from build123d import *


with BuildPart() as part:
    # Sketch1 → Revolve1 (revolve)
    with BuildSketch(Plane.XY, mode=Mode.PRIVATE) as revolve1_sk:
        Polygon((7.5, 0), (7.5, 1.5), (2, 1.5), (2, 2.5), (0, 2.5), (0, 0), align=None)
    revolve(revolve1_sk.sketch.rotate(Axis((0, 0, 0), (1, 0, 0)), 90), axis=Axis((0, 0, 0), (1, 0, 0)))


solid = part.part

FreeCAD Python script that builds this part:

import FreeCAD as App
import Part
import Sketcher

V = App.Vector
Q = App.Units.Quantity

doc = App.newDocument("Part")
body = doc.addObject("PartDesign::Body", "Body")

# Sketch on XY plane
sketch1 = body.newObject("Sketcher::SketchObject", "Sketch")
sketch1.AttachmentSupport = (doc.getObject("XY_Plane"), [""])
sketch1.MapMode = "FlatFace"
sketch1.addGeometry(Part.LineSegment(V(7.5, 0, 0), V(7.5, 1.5, 0)), False)
sketch1.addGeometry(Part.LineSegment(V(7.5, 1.5, 0), V(2, 1.5, 0)), False)
sketch1.addGeometry(Part.LineSegment(V(2, 1.5, 0), V(2, 2.5, 0)), False)
sketch1.addGeometry(Part.LineSegment(V(2, 2.5, 0), V(0, 2.5, 0)), False)
sketch1.addGeometry(Part.LineSegment(V(0, 2.5, 0), V(0, 0, 0)), False)
sketch1.addGeometry(Part.LineSegment(V(0, 0, 0), V(7.5, 0, 0)), False)
sketch1.addConstraint(Sketcher.Constraint("Coincident", 0, 2, 1, 1))
sketch1.addConstraint(Sketcher.Constraint("Coincident", 1, 2, 2, 1))
sketch1.addConstraint(Sketcher.Constraint("Coincident", 2, 2, 3, 1))
sketch1.addConstraint(Sketcher.Constraint("Coincident", 3, 2, 4, 1))
sketch1.addConstraint(Sketcher.Constraint("Coincident", 4, 2, 5, 1))
sketch1.addConstraint(Sketcher.Constraint("Coincident", 5, 2, 0, 1))
sketch1.addConstraint(Sketcher.Constraint("Vertical", 0))
sketch1.addConstraint(Sketcher.Constraint("Horizontal", 1))
sketch1.addConstraint(Sketcher.Constraint("Vertical", 2))
sketch1.addConstraint(Sketcher.Constraint("Horizontal", 3))
sketch1.addConstraint(Sketcher.Constraint("Vertical", 4))
sketch1.addConstraint(Sketcher.Constraint("Horizontal", 5))
sketch1.addConstraint(Sketcher.Constraint("Coincident", 4, 2, -1, 1))
sketch1.addConstraint(Sketcher.Constraint("DistanceX", 3, 2, 3, 1, Q("2 mm")))
sketch1.addConstraint(Sketcher.Constraint("DistanceY", 2, 1, 2, 2, Q("1 mm")))
sketch1.addConstraint(Sketcher.Constraint("DistanceX", 1, 2, 1, 1, Q("5.5 mm")))
sketch1.addConstraint(Sketcher.Constraint("DistanceY", 0, 1, 0, 2, Q("1.5 mm")))
revolution = body.newObject("PartDesign::Revolution", "Revolution")
revolution.Profile = sketch1
revolution.ReferenceAxis = (sketch1, ["H_Axis"])
revolution.Angle = 360

doc.recompute()
